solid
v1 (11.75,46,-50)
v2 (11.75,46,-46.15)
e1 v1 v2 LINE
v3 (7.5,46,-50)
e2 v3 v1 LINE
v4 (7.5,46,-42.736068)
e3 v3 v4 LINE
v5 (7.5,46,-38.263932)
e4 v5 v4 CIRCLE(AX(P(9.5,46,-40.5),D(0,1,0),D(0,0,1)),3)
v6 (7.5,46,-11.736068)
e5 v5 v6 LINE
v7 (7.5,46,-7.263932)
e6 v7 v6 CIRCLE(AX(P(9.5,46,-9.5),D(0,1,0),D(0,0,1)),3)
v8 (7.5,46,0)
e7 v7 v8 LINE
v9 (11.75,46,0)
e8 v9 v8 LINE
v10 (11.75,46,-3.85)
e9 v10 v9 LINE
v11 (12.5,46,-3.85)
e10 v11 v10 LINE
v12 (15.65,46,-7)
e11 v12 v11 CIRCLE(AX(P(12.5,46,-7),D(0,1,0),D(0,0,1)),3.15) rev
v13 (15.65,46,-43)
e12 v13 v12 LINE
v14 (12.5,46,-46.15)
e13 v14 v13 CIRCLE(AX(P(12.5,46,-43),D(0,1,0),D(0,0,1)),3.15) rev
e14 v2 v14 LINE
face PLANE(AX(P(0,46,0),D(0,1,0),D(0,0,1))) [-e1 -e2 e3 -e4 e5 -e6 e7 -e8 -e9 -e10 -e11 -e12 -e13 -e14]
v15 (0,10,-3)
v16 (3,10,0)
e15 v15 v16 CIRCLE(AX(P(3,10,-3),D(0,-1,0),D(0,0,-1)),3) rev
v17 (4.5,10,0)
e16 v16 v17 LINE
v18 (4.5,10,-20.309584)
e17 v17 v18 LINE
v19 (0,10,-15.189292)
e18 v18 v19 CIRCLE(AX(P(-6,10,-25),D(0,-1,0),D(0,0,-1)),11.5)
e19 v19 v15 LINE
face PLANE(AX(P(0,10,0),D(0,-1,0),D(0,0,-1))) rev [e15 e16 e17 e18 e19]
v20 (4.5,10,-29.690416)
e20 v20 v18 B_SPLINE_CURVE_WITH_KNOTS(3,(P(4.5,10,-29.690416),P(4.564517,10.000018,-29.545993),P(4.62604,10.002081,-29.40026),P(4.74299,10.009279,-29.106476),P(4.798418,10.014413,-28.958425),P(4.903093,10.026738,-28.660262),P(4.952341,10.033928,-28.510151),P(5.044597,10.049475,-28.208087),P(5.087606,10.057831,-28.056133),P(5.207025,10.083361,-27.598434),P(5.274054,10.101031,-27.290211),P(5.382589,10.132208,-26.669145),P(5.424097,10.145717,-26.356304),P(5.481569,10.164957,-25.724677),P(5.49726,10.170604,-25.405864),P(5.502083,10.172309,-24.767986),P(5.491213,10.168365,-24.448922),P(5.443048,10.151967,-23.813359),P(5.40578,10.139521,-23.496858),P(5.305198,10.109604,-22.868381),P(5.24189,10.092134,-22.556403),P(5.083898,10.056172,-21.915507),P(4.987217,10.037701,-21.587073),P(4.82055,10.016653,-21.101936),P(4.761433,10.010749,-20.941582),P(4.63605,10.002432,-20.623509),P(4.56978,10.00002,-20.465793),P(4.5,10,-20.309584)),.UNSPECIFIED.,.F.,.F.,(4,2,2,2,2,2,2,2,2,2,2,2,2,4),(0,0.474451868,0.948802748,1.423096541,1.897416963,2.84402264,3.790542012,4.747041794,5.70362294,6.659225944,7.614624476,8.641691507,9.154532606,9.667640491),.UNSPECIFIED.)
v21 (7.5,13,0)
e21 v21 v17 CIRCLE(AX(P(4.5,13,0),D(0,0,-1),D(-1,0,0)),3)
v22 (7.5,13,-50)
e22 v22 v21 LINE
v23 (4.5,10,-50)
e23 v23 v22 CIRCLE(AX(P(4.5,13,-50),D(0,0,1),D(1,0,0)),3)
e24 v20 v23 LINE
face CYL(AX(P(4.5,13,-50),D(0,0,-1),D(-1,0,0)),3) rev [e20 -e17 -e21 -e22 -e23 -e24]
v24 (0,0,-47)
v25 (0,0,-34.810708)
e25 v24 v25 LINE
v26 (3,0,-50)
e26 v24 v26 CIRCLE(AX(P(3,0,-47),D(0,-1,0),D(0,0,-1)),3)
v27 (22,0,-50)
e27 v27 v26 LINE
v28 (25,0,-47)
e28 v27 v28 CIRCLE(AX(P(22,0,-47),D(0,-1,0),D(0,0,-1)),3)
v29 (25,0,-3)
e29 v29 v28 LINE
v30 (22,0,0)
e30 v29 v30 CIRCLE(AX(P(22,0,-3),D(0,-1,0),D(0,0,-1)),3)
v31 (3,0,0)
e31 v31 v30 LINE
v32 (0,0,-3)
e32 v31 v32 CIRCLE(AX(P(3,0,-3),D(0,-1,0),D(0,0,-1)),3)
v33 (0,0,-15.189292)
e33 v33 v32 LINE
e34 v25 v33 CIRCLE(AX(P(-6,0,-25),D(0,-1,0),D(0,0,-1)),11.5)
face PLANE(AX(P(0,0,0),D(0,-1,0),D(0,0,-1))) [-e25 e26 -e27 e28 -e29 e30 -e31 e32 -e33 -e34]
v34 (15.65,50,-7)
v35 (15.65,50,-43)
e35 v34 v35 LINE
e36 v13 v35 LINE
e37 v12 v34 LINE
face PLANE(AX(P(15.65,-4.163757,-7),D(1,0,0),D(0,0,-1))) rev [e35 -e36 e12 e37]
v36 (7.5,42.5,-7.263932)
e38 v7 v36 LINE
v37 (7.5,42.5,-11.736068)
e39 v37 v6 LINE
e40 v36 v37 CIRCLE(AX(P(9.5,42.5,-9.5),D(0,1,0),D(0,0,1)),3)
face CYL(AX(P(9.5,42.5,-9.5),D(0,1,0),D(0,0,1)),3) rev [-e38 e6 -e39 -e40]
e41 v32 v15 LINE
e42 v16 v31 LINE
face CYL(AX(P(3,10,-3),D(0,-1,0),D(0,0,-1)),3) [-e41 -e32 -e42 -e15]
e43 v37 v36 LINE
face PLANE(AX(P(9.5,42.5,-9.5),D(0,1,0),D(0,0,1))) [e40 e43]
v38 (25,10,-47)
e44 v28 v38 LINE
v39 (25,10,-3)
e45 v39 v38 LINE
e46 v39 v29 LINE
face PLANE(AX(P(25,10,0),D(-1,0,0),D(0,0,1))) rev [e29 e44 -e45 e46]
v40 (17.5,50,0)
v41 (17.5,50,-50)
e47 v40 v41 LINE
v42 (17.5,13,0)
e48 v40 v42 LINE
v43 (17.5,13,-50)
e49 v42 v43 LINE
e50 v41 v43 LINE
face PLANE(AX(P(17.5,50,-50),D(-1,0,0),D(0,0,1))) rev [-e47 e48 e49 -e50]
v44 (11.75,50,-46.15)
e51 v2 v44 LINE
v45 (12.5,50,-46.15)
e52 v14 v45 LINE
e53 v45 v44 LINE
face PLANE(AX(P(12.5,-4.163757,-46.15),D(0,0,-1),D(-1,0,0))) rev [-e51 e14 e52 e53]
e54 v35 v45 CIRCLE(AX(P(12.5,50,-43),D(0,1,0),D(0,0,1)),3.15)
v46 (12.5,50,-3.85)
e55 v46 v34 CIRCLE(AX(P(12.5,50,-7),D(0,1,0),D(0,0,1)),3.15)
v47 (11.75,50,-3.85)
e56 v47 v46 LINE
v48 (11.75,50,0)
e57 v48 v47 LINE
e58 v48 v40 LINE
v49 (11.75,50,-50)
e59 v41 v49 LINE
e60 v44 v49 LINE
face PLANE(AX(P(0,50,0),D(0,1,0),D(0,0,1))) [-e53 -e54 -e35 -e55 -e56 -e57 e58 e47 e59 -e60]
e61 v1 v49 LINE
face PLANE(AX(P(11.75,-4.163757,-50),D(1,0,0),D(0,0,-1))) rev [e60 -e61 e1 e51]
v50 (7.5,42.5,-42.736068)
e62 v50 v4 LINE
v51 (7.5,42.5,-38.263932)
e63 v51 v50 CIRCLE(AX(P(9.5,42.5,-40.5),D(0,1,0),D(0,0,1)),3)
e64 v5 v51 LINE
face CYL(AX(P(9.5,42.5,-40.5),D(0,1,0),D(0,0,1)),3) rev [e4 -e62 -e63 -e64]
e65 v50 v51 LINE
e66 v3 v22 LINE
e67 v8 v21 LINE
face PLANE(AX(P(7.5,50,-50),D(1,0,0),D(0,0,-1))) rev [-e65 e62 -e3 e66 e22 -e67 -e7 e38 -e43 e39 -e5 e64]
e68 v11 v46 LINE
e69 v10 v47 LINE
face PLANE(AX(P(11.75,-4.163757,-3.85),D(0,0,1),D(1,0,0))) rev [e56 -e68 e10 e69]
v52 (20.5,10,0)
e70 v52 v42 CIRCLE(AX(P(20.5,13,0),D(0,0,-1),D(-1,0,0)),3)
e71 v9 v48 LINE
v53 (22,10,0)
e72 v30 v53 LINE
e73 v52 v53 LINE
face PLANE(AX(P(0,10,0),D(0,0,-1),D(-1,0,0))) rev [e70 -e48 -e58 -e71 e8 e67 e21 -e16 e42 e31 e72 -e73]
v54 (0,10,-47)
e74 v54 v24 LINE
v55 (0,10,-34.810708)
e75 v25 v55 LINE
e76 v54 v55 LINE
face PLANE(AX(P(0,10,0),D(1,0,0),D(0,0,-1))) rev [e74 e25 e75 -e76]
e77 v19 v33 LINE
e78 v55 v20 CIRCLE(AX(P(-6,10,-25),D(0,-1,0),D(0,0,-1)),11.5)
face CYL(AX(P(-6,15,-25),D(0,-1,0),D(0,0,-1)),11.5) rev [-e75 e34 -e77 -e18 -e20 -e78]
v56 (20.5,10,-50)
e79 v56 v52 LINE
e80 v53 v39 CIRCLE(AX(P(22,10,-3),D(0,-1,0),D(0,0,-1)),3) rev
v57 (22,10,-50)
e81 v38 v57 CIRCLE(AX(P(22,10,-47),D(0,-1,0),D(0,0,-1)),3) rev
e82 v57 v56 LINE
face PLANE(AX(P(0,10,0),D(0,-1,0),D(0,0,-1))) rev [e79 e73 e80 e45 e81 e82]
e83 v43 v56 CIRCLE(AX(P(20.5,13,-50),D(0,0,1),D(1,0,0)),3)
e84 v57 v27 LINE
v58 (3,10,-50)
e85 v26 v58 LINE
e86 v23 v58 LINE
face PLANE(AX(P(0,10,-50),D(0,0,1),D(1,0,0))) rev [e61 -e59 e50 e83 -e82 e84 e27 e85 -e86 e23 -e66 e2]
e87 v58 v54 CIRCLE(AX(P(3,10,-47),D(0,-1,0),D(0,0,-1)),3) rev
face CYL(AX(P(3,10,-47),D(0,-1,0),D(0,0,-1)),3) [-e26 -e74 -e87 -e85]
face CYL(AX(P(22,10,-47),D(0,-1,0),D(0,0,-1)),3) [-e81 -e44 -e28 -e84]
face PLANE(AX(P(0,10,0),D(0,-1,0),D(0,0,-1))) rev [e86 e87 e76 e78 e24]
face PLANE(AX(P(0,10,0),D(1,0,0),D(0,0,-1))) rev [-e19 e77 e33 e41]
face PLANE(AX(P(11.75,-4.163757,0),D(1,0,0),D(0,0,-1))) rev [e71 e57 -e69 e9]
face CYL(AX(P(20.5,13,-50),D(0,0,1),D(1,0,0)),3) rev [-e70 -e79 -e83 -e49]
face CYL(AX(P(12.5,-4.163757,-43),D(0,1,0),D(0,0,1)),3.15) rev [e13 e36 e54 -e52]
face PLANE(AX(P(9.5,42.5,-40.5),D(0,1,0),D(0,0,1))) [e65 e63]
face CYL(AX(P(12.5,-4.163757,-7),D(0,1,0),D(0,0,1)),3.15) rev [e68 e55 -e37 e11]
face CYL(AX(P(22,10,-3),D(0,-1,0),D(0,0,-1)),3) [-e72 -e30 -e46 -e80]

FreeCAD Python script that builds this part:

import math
import FreeCAD as App
import Part
import Sketcher
from FreeCAD import Vector


def edges_at(feature, points):
    """Names of the edges that pass closest to the given points."""
    edges = feature.Shape.Edges
    near = lambda p: min(range(len(edges)), key=lambda i: edges[i].distToShape(Part.Vertex(*p))[0])
    return sorted({f"Edge{near(p) + 1}" for p in points})


def add_polygon(sketch, points):
    """Adds a closed chain of lines whose ends are joined by coincident constraints."""
    first, n = sketch.GeometryCount, len(points)
    for a, b in zip(points, points[1:] + points[:1]):
        sketch.addGeometry(Part.LineSegment(App.Vector(*a, 0), App.Vector(*b, 0)), False)
    for i in range(n):
        sketch.addConstraint(Sketcher.Constraint("Coincident", first + i, 2, first + (i + 1) % n, 1))

doc = App.newDocument("Part")
body = doc.addObject("PartDesign::Body", "Body")

# Sketch on XZ plane
sketch1 = body.newObject("Sketcher::SketchObject", "Sketch")
sketch1.AttachmentSupport = (doc.getObject("XZ_Plane"), [""])
sketch1.MapMode = "FlatFace"
add_polygon(sketch1, [(0, -50), (0, 0), (25, 0), (25, -50)])  # lines 0-3
sketch1.addConstraint(Sketcher.Constraint("Vertical", 0))
sketch1.addConstraint(Sketcher.Constraint("Horizontal", 1))
sketch1.addConstraint(Sketcher.Constraint("Vertical", 2))
sketch1.addConstraint(Sketcher.Constraint("Horizontal", 3))
sketch1.addConstraint(Sketcher.Constraint("Coincident", 0, 2, -1, 1))
sketch1.addConstraint(Sketcher.Constraint("DistanceX", 1, 1, 1, 2, 25.0))
sketch1.addConstraint(Sketcher.Constraint("DistanceY", 0, 1, 0, 2, 50.0))
pad1 = body.newObject("PartDesign::Pad", "Pad")
pad1.Profile = sketch1
pad1.Length = 10
pad1.Reversed = True

# Sketch on XZ plane
sketch2 = body.newObject("Sketcher::SketchObject", "Sketch001")
sketch2.AttachmentSupport = (doc.getObject("XZ_Plane"), [""])
sketch2.MapMode = "FlatFace"
sketch2.AttachmentOffset = App.Placement(Vector(0, 0, -10), App.Rotation())
add_polygon(sketch2, [(8, -50), (8, 0), (18, 0), (18, -50)])  # lines 0-3
sketch2.addConstraint(Sketcher.Constraint("Vertical", 0))
sketch2.addConstraint(Sketcher.Constraint("Horizontal", 1))
sketch2.addConstraint(Sketcher.Constraint("Vertical", 2))
sketch2.addConstraint(Sketcher.Constraint("Horizontal", 3))
sketch2.addConstraint(Sketcher.Constraint("PointOnObject", 0, 2, -1))
sketch2.addConstraint(Sketcher.Constraint("DistanceX", 1, 1, 1, 2, 10.0))
sketch2.addConstraint(Sketcher.Constraint("DistanceY", 0, 1, 0, 2, 50.0))
sketch2.addConstraint(Sketcher.Constraint("DistanceX", -1, 1, 0, 2, 7.5))
pad2 = body.newObject("PartDesign::Pad", "Pad001")
pad2.Profile = sketch2
pad2.Length = 40
pad2.Reversed = True

# Sketch on XZ plane
sketch3 = body.newObject("Sketcher::SketchObject", "Sketch002")
sketch3.AttachmentSupport = (doc.getObject("XZ_Plane"), [""])
sketch3.MapMode = "FlatFace"
sketch3.AttachmentOffset = App.Placement(Vector(0, 0, -50), App.Rotation())
add_polygon(sketch3, [(8, -46), (8, -4), (16, -4), (16, -46)])  # lines 0-3
sketch3.addConstraint(Sketcher.Constraint("Vertical", 0))
sketch3.addConstraint(Sketcher.Constraint("Horizontal", 1))
sketch3.addConstraint(Sketcher.Constraint("Vertical", 2))
sketch3.addConstraint(Sketcher.Constraint("Horizontal", 3))
sketch3.addConstraint(Sketcher.Constraint("DistanceX", 1, 1, 1, 2, 8.0))
sketch3.addConstraint(Sketcher.Constraint("DistanceY", 0, 1, 0, 2, 42.0))
sketch3.addConstraint(Sketcher.Constraint("DistanceY", 0, 2, -1, 1, 4.0))
sketch3.addConstraint(Sketcher.Constraint("DistanceX", -1, 1, 0, 2, 7.5))
pocket1 = body.newObject("PartDesign::Pocket", "Pocket")
pocket1.Profile = sketch3
pocket1.Length = 4
pocket1.Reversed = True
doc.recompute()

fillet = body.newObject("PartDesign::Fillet", "Fillet")
fillet.Base = (pocket1, edges_at(pocket1, [(15.5, 48, -46), (15.5, 48, -4)]))
fillet.Radius = 3

# Sketch on XZ plane
sketch4 = body.newObject("Sketcher::SketchObject", "Sketch003")
sketch4.AttachmentSupport = (doc.getObject("XZ_Plane"), [""])
sketch4.MapMode = "FlatFace"
sketch4.AttachmentOffset = App.Placement(Vector(0, 0, -50), App.Rotation())
add_polygon(sketch4, [(7.5, -50), (7.5, 0), (11.6, 0), (11.6, -50)])  # lines 0-3
sketch4.addConstraint(Sketcher.Constraint("Vertical", 0))
sketch4.addConstraint(Sketcher.Constraint("Horizontal", 1))
sketch4.addConstraint(Sketcher.Constraint("Vertical", 2))
sketch4.addConstraint(Sketcher.Constraint("Horizontal", 3))
sketch4.addConstraint(Sketcher.Constraint("PointOnObject", 0, 2, -1))
sketch4.addConstraint(Sketcher.Constraint("DistanceY", 0, 1, 0, 2, 50.0))
sketch4.addConstraint(Sketcher.Constraint("DistanceX", 1, 1, 1, 2, 4.1))
sketch4.addConstraint(Sketcher.Constraint("DistanceX", -1, 1, 0, 2, 7.5))
pocket2 = body.newObject("PartDesign::Pocket", "Pocket001")
pocket2.Profile = sketch4
pocket2.Length = 4
pocket2.Reversed = True

# Sketch on XZ plane
sketch5 = body.newObject("Sketcher::SketchObject", "Sketch004")
sketch5.AttachmentSupport = (doc.getObject("XZ_Plane"), [""])
sketch5.MapMode = "FlatFace"
sketch5.AttachmentOffset = App.Placement(Vector(0, 0, -46), App.Rotation())
sketch5.addGeometry(Part.Circle(Vector(9.5, -9.5, 0), Vector(0, 0, 1), 3), False)
sketch5.addGeometry(Part.Circle(Vector(9.5, -40.5, 0), Vector(0, 0, 1), 3), False)
sketch5.addConstraint(Sketcher.Constraint("Equal", 0, 1))
sketch5.addConstraint(Sketcher.Constraint("Vertical", 0, 3, 1, 3))
sketch5.addConstraint(Sketcher.Constraint("Diameter", 0, 6.0))
sketch5.addConstraint(Sketcher.Constraint("DistanceY", 1, 3, 0, 3, 31.0))
sketch5.addConstraint(Sketcher.Constraint("DistanceX", -1, 1, 0, 3, 9.5))
sketch5.addConstraint(Sketcher.Constraint("DistanceY", 0, 3, -1, 1, 9.5))
pocket3 = body.newObject("PartDesign::Pocket", "Pocket002")
pocket3.Profile = sketch5
pocket3.Length = 3.5
pocket3.Reversed = True

# Sketch on XZ plane
sketch6 = body.newObject("Sketcher::SketchObject", "Sketch005")
sketch6.AttachmentSupport = (doc.getObject("XZ_Plane"), [""])
sketch6.MapMode = "FlatFace"
sketch6.AttachmentOffset = App.Placement(Vector(0, 0, -46), App.Rotation())
sketch6.addGeometry(Part.LineSegment(Vector(12.5, -4, 0), Vector(11.6, -4, 0)), False)
sketch6.addGeometry(Part.LineSegment(Vector(11.6, -4, 0), Vector(11.6, 0, 0)), False)
sketch6.addGeometry(Part.LineSegment(Vector(11.6, 0, 0), Vector(11.75, 0, 0)), False)
sketch6.addGeometry(Part.LineSegment(Vector(11.75, 0, 0), Vector(11.75, -3.85, 0)), False)
sketch6.addGeometry(Part.LineSegment(Vector(11.75, -3.85, 0), Vector(12.5, -3.85, 0)), False)
sketch6.addGeometry(Part.ArcOfCircle(Part.Circle(Vector(12.5, -7, 0), Vector(0, 0, 1), 3.15), math.radians(0), math.radians(90)), False)
sketch6.addGeometry(Part.LineSegment(Vector(15.65, -7, 0), Vector(15.65, -43, 0)), False)
sketch6.addGeometry(Part.ArcOfCircle(Part.Circle(Vector(12.5, -43, 0), Vector(0, 0, 1), 3.15), math.radians(-90), math.radians(0)), False)
sketch6.addGeometry(Part.LineSegment(Vector(12.5, -46.15, 0), Vector(11.75, -46.15, 0)), False)
sketch6.addGeometry(Part.LineSegment(Vector(11.75, -46.15, 0), Vector(11.75, -50, 0)), False)
sketch6.addGeometry(Part.LineSegment(Vector(11.75, -50, 0), Vector(11.6, -50, 0)), False)
sketch6.addGeometry(Part.LineSegment(Vector(11.6, -50, 0), Vector(11.6, -46, 0)), False)
sketch6.addGeometry(Part.LineSegment(Vector(11.6, -46, 0), Vector(12.5, -46, 0)), False)
sketch6.addGeometry(Part.ArcOfCircle(Part.Circle(Vector(12.5, -43, 0), Vector(0, 0, 1), 3), math.radians(-90), math.radians(0)), False)
sketch6.addGeometry(Part.LineSegment(Vector(15.5, -43, 0), Vector(15.5, -7, 0)), False)
sketch6.addGeometry(Part.ArcOfCircle(Part.Circle(Vector(12.5, -7, 0), Vector(0, 0, 1), 3), math.radians(0), math.radians(90)), False)
sketch6.addConstraint(Sketcher.Constraint("Coincident", 0, 2, 1, 1))
sketch6.addConstraint(Sketcher.Constraint("Coincident", 1, 2, 2, 1))
sketch6.addConstraint(Sketcher.Constraint("Coincident", 2, 2, 3, 1))
sketch6.addConstraint(Sketcher.Constraint("Coincident", 3, 2, 4, 1))
sketch6.addConstraint(Sketcher.Constraint("Tangent", 4, 2, 5, 2))
sketch6.addConstraint(Sketcher.Constraint("Tangent", 5, 1, 6, 1))
sketch6.addConstraint(Sketcher.Constraint("Tangent", 6, 2, 7, 2))
sketch6.addConstraint(Sketcher.Constraint("Tangent", 7, 1, 8, 1))
sketch6.addConstraint(Sketcher.Constraint("Coincident", 8, 2, 9, 1))
sketch6.addConstraint(Sketcher.Constraint("Coincident", 9, 2, 10, 1))
sketch6.addConstraint(Sketcher.Constraint("Coincident", 10, 2, 11, 1))
sketch6.addConstraint(Sketcher.Constraint("Coincident", 11, 2, 12, 1))
sketch6.addConstraint(Sketcher.Constraint("Tangent", 12, 2, 13, 1))
sketch6.addConstraint(Sketcher.Constraint("Tangent", 13, 2, 14, 1))
sketch6.addConstraint(Sketcher.Constraint("Tangent", 14, 2, 15, 1))
sketch6.addConstraint(Sketcher.Constraint("Tangent", 15, 2, 0, 1))
sketch6.addConstraint(Sketcher.Constraint("Horizontal", 0))
sketch6.addConstraint(Sketcher.Constraint("Vertical", 1))
sketch6.addConstraint(Sketcher.Constraint("Horizontal", 2))
sketch6.addConstraint(Sketcher.Constraint("Vertical", 3))
sketch6.addConstraint(Sketcher.Constraint("Horizontal", 4))
sketch6.addConstraint(Sketcher.Constraint("Vertical", 6))
sketch6.addConstraint(Sketcher.Constraint("Horizontal", 8))
sketch6.addConstraint(Sketcher.Constraint("Vertical", 9))
sketch6.addConstraint(Sketcher.Constraint("Horizontal", 10))
sketch6.addConstraint(Sketcher.Constraint("Vertical", 11))
sketch6.addConstraint(Sketcher.Constraint("Horizontal", 12))
sketch6.addConstraint(Sketcher.Constraint("Vertical", 14))
sketch6.addConstraint(Sketcher.Constraint("Coincident", 13, 3, 7, 3))
sketch6.addConstraint(Sketcher.Constraint("Coincident", 15, 3, 5, 3))
sketch6.addConstraint(Sketcher.Constraint("Equal", 5, 7))
sketch6.addConstraint(Sketcher.Constraint("PointOnObject", 1, 2, -1))
sketch6.addConstraint(Sketcher.Constraint("Vertical", 3, 2, 8, 2))
sketch6.addConstraint(Sketcher.Constraint("Vertical", 1, 2, 10, 2))
sketch6.addConstraint(Sketcher.Constraint("Equal", 3, 9))
sketch6.addConstraint(Sketcher.Constraint("Radius", 13, 3.0))
sketch6.addConstraint(Sketcher.Constraint("DistanceY", 1, 1, 1, 2, 4.0))
sketch6.addConstraint(Sketcher.Constraint("DistanceY", 6, 2, 6, 1, 36.0))
sketch6.addConstraint(Sketcher.Constraint("Radius", 5, 3.15))
sketch6.addConstraint(Sketcher.Constraint("DistanceX", 0, 2, 0, 1, 0.9))
sketch6.addConstraint(Sketcher.Constraint("DistanceX", 2, 1, 2, 2, 0.15))
sketch6.addConstraint(Sketcher.Constraint("DistanceX", -1, 1, 5, 3, 12.5))
pocket4 = body.newObject("PartDesign::Pocket", "Pocket003")
pocket4.Profile = sketch6
pocket4.Length = 4
doc.recompute()

fillet2 = body.newObject("PartDesign::Fillet", "Fillet001")
fillet2.Base = (pocket4, edges_at(pocket4, [
    (7.5, 10, -25),
    (17.5, 10, -25),
    (0, 5, -50),
    (25, 5, -50),
    (25, 5, 0),
    (0, 5, 0),
]))
fillet2.Radius = 3

# Sketch on XZ plane
sketch7 = body.newObject("Sketcher::SketchObject", "Sketch006")
sketch7.AttachmentSupport = (doc.getObject("XZ_Plane"), [""])
sketch7.MapMode = "FlatFace"
sketch7.addGeometry(Part.Circle(Vector(-6, -25, 0), Vector(0, 0, 1), 12), False)
sketch7.addConstraint(Sketcher.Constraint("Diameter", 0, 23.0))
sketch7.addConstraint(Sketcher.Constraint("DistanceX", 0, 3, -1, 1, 6.0))
sketch7.addConstraint(Sketcher.Constraint("DistanceY", 0, 3, -1, 1, 25.0))
pocket5 = body.newObject("PartDesign::Pocket", "Pocket004")
pocket5.Profile = sketch7
pocket5.Length = 15

doc.recompute()
